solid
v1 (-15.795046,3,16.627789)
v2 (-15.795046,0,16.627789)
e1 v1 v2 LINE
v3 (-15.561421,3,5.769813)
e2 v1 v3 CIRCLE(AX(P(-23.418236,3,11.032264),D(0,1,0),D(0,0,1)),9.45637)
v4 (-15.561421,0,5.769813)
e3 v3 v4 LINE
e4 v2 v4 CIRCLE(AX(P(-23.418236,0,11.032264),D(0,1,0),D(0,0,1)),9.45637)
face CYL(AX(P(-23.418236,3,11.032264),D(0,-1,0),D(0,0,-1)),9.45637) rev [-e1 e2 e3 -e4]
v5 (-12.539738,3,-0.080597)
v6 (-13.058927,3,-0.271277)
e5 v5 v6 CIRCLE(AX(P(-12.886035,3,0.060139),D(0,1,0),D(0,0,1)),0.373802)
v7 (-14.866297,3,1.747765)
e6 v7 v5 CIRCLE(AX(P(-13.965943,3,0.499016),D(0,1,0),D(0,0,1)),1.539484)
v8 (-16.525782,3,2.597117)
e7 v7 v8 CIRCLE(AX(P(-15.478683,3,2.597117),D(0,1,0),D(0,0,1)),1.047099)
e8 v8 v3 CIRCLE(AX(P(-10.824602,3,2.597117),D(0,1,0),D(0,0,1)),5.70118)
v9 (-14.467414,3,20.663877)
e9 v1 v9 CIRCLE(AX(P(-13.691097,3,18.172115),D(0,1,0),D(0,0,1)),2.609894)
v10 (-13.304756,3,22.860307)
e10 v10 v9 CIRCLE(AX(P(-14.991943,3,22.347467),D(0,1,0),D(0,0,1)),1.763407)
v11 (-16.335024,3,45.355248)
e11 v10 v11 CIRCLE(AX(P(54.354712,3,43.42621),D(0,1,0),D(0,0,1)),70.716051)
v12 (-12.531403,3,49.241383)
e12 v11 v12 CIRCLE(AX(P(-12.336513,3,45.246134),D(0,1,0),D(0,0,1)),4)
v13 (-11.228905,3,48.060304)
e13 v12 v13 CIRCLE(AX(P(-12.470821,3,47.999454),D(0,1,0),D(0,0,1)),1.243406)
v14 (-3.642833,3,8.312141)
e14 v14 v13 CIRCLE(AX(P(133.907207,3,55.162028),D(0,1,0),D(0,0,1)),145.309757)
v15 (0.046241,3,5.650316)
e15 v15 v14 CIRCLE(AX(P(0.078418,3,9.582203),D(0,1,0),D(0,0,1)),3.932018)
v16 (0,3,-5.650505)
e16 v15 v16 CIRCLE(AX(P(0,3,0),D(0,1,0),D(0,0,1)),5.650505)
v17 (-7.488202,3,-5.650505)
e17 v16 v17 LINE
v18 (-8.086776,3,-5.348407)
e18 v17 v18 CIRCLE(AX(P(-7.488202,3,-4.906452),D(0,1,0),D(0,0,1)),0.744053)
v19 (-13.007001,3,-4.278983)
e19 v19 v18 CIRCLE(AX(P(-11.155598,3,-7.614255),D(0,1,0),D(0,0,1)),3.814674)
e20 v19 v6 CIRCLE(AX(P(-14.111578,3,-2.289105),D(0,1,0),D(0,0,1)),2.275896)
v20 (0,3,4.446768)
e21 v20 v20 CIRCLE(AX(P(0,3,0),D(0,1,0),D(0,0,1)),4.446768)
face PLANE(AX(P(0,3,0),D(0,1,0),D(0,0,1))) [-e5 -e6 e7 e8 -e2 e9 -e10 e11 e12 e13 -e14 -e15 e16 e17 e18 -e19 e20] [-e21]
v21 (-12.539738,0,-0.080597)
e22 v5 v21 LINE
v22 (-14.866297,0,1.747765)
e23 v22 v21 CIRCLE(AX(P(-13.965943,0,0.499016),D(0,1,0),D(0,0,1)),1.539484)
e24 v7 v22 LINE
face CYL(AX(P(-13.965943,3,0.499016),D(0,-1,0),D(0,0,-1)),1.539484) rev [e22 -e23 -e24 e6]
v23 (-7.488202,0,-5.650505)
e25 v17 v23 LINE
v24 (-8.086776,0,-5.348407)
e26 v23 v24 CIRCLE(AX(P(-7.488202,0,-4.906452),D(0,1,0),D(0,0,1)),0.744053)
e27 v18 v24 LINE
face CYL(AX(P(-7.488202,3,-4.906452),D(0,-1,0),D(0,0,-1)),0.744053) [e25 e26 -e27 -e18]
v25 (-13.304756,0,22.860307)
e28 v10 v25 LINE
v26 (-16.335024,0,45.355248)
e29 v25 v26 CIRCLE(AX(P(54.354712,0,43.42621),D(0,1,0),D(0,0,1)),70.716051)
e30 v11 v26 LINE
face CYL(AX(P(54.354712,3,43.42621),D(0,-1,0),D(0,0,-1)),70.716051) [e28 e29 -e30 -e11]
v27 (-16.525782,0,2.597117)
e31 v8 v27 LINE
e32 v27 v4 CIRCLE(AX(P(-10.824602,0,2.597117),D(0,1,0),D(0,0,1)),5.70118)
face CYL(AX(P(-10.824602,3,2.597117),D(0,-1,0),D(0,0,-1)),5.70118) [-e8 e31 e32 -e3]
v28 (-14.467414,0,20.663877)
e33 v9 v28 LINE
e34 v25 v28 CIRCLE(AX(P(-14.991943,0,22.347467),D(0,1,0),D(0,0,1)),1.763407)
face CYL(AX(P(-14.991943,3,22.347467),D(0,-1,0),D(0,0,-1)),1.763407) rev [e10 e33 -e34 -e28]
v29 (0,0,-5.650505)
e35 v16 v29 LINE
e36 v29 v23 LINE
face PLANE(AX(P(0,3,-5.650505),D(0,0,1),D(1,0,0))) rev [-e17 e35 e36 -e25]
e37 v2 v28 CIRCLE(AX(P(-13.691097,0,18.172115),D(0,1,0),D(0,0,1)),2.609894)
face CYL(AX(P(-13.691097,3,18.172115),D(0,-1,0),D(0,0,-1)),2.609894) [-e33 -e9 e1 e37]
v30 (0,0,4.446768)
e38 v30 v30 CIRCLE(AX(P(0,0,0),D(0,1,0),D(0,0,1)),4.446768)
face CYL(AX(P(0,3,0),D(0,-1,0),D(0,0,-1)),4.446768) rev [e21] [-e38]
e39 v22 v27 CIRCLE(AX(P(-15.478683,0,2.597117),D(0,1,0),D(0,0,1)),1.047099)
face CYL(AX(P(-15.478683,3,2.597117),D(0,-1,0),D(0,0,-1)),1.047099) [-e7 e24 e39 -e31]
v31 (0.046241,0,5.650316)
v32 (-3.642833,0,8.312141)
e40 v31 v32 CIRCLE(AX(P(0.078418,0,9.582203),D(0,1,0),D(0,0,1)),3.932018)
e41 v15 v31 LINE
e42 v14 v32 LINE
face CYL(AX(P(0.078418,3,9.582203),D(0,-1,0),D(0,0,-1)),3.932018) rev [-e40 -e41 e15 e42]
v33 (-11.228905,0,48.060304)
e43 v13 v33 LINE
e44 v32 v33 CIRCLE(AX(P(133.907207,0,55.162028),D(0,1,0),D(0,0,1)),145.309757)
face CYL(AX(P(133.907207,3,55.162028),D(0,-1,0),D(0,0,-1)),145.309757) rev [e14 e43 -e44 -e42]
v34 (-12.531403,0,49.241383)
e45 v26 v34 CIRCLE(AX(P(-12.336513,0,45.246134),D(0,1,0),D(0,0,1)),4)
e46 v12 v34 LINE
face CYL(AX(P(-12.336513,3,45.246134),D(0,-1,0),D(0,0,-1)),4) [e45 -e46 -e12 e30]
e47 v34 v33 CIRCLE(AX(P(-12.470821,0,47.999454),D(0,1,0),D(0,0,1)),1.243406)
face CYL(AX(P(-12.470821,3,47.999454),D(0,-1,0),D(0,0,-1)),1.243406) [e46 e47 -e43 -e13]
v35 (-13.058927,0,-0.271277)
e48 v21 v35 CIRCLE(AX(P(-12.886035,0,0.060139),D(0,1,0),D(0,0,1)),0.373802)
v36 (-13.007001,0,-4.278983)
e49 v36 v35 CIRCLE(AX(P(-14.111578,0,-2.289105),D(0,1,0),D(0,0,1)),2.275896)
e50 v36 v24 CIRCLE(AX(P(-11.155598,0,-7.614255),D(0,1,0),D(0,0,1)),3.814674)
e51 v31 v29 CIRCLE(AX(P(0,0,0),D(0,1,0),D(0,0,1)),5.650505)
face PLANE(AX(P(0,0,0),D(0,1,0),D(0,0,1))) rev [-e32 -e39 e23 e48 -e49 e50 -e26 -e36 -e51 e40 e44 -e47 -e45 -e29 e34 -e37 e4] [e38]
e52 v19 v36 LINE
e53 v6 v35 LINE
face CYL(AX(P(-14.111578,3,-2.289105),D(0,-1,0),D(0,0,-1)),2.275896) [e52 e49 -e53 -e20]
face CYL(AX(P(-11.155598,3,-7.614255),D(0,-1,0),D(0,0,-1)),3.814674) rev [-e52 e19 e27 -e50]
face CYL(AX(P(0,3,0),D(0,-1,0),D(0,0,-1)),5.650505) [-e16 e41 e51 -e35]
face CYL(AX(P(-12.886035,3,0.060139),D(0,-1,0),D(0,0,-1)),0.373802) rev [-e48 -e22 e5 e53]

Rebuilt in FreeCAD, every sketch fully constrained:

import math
import FreeCAD as App
import Part
import Sketcher
from FreeCAD import Vector
Q = App.Units.Quantity

doc = App.newDocument("Part")
body = doc.addObject("PartDesign::Body", "Body")

sketch1 = doc.addObject("Sketcher::SketchObject", "Sketch")
body.addObject(sketch1)
sketch1.AttachmentSupport = (doc.XZ_Plane, [""])
sketch1.MapMode = "FlatFace"
sketch1.addGeometry([
    Part.ArcOfCircle(Part.Circle(Vector(0, 0, 0), Vector(0, 0, 1), 5.650505), math.radians(-90), math.radians(89.531117)),
    Part.LineSegment(Vector(0, -5.650505, 0), Vector(-7.488202, -5.650505, 0)),
    Part.ArcOfCircle(Part.Circle(Vector(-7.488202, -4.906452, 0), Vector(0, 0, 1), 0.744053), math.radians(-143.559886), math.radians(-90)),
    Part.ArcOfCircle(Part.Circle(Vector(-11.155598, -7.614255, 0), Vector(0, 0, 1), 3.814674), math.radians(36.440114), math.radians(119.034566)),
    Part.ArcOfCircle(Part.Circle(Vector(-14.111578, -2.289105, 0), Vector(0, 0, 1), 2.275896), math.radians(62.450047), math.radians(299.034566)),
    Part.ArcOfCircle(Part.Circle(Vector(-12.886035, 0.060139, 0), Vector(0, 0, 1), 0.373802), math.radians(-117.549953), math.radians(-22.116926)),
    Part.ArcOfCircle(Part.Circle(Vector(-13.965943, 0.499016, 0), Vector(0, 0, 1), 1.539484), math.radians(-22.116926), math.radians(125.791772)),
    Part.ArcOfCircle(Part.Circle(Vector(-15.478683, 2.597117, 0), Vector(0, 0, 1), 1.047099), math.radians(180), math.radians(305.791772)),
    Part.ArcOfCircle(Part.Circle(Vector(-10.824602, 2.597117, 0), Vector(0, 0, 1), 5.70118), math.radians(146.186042), math.radians(180)),
    Part.ArcOfCircle(Part.Circle(Vector(-23.418236, 11.032264, 0), Vector(0, 0, 1), 9.45637), math.radians(-33.813958), math.radians(36.27917)),
    Part.ArcOfCircle(Part.Circle(Vector(-13.691097, 18.172115, 0), Vector(0, 0, 1), 2.609894), math.radians(107.304616), math.radians(216.27917)),
    Part.ArcOfCircle(Part.Circle(Vector(-14.991943, 22.347467, 0), Vector(0, 0, 1), 1.763407), math.radians(-72.695384), math.radians(16.907275)),
    Part.ArcOfCircle(Part.Circle(Vector(54.354712, 43.42621, 0), Vector(0, 0, 1), 70.716051), math.radians(178.436855), math.radians(196.907275)),
    Part.ArcOfCircle(Part.Circle(Vector(-12.336513, 45.246134, 0), Vector(0, 0, 1), 4), math.radians(92.792702), math.radians(178.436855)),
    Part.ArcOfCircle(Part.Circle(Vector(-12.470821, 47.999454, 0), Vector(0, 0, 1), 1.243406), math.radians(2.805059), math.radians(92.792702)),
    Part.ArcOfCircle(Part.Circle(Vector(133.907207, 55.162028, 0), Vector(0, 0, 1), 145.309757), math.radians(-177.198667), math.radians(-161.191029)),
    Part.ArcOfCircle(Part.Circle(Vector(0.078418, 9.582203, 0), Vector(0, 0, 1), 3.932018), math.radians(-161.15525), math.radians(-90.468883)),
    Part.Circle(Vector(0, 0, 0), Vector(0, 0, 1), 4.446768),
], False)
sketch1.addConstraint([
    Sketcher.Constraint("Tangent", 0, 1, 1, 1),
    Sketcher.Constraint("Tangent", 1, 2, 2, 2),
    Sketcher.Constraint("Tangent", 2, 1, 3, 1),
    Sketcher.Constraint("Tangent", 3, 2, 4, 2),
    Sketcher.Constraint("Tangent", 4, 1, 5, 1),
    Sketcher.Constraint("Tangent", 5, 2, 6, 1),
    Sketcher.Constraint("Tangent", 6, 2, 7, 2),
    Sketcher.Constraint("Tangent", 7, 1, 8, 2),
    Sketcher.Constraint("Tangent", 8, 1, 9, 1),
    Sketcher.Constraint("Tangent", 9, 2, 10, 2),
    Sketcher.Constraint("Tangent", 10, 1, 11, 1),
    Sketcher.Constraint("Tangent", 11, 2, 12, 2),
    Sketcher.Constraint("Tangent", 12, 1, 13, 2),
    Sketcher.Constraint("Tangent", 13, 1, 14, 2),
    Sketcher.Constraint("Coincident", 14, 1, 15, 1),
    Sketcher.Constraint("Coincident", 15, 2, 16, 1),
    Sketcher.Constraint("Tangent", 16, 2, 0, 2),
    Sketcher.Constraint("Horizontal", 1),
    Sketcher.Constraint("Coincident", 0, 3, -1, 1),
    Sketcher.Constraint("Coincident", 17, 3, -1, 1),
    Sketcher.Constraint("Horizontal", 7, 3, 8, 3),
    Sketcher.Constraint("Radius", 13, Q("4 mm")),
    Sketcher.Constraint("Radius", 7, Q("1.047099 mm")),
    Sketcher.Constraint("Radius", 8, Q("5.70118 mm")),
    Sketcher.Constraint("Radius", 9, Q("9.45637 mm")),
    Sketcher.Constraint("Radius", 12, Q("70.716051 mm")),
    Sketcher.Constraint("Radius", 16, Q("3.932018 mm")),
    Sketcher.Constraint("Diameter", 17, Q("8.893536 mm")),
    Sketcher.Constraint("DistanceX", 1, 2, 1, 1, Q("7.488202 mm")),
    Sketcher.Constraint("DistanceX", 3, 2, -1, 1, Q("13.007001 mm")),
    Sketcher.Constraint("Radius", 0, Q("5.650505 mm")),
    Sketcher.Constraint("Radius", 2, Q("0.744053 mm")),
    Sketcher.Constraint("Radius", 3, Q("3.814674 mm")),
    Sketcher.Constraint("Radius", 4, Q("2.275896 mm")),
    Sketcher.Constraint("Radius", 5, Q("0.373802 mm")),
    Sketcher.Constraint("Radius", 6, Q("1.539484 mm")),
    Sketcher.Constraint("Radius", 10, Q("2.609894 mm")),
    Sketcher.Constraint("Radius", 11, Q("1.763407 mm")),
    Sketcher.Constraint("Radius", 14, Q("1.243406 mm")),
    Sketcher.Constraint("Radius", 15, Q("145.309757 mm")),
    Sketcher.Constraint("DistanceY", 7, 3, 10, 3, Q("15.574998 mm")),
    Sketcher.Constraint("DistanceX", 11, 3, 6, 3, Q("1.026 mm")),
    Sketcher.Constraint("DistanceY", 3, 2, 6, 3, Q("4.777998 mm")),
    Sketcher.Constraint("DistanceX", 3, 3, -1, 1, Q("11.155598 mm")),
    Sketcher.Constraint("DistanceY", 6, 3, 7, 3, Q("2.098101 mm")),
    Sketcher.Constraint("DistanceX", 8, 3, 2, 3, Q("3.3364 mm")),
    Sketcher.Constraint("DistanceX", 9, 3, 5, 3, Q("10.532201 mm")),
    Sketcher.Constraint("DistanceX", 13, 1, 14, 1, Q("1.302498 mm")),
    Sketcher.Constraint("DistanceX", -1, 1, 12, 3, Q("54.354712 mm")),
    Sketcher.Constraint("DistanceX", 14, 3, -1, 1, Q("12.470821 mm")),
    Sketcher.Constraint("DistanceY", -1, 1, 15, 3, Q("55.162028 mm")),
    Sketcher.Constraint("DistanceX", -1, 1, 16, 3, Q("0.078418 mm")),
    Sketcher.Constraint("DistanceY", -1, 1, 15, 2, Q("8.312141 mm")),
])
pad1 = doc.addObject("PartDesign::Pad", "Pad")
body.addObject(pad1)
pad1.Profile = sketch1
pad1.Length = 3
pad1.Reversed = True

doc.recompute()
